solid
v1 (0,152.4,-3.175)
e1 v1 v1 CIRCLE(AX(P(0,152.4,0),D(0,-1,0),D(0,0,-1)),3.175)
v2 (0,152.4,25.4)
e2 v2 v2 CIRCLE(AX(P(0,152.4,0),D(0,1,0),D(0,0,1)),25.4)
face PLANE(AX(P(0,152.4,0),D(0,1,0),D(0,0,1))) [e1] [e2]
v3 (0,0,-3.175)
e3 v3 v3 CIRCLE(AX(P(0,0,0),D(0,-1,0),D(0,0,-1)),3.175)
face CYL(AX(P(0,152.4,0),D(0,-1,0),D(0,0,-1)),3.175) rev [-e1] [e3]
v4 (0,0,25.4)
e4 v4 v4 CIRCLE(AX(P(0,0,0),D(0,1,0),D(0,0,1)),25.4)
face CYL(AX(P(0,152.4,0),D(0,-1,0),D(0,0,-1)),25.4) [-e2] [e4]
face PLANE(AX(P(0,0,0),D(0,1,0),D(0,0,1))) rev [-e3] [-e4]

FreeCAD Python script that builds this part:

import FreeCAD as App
import Part
import Sketcher
from FreeCAD import Vector
Q = App.Units.Quantity

doc = App.newDocument("Part")
body = doc.addObject("PartDesign::Body", "Body")

sketch1 = body.newObject("Sketcher::SketchObject", "Sketch")
sketch1.AttachmentSupport = (doc.getObject("XZ_Plane"), [""])
sketch1.MapMode = "FlatFace"
sketch1.addGeometry(Part.Circle(Vector(0, 0, 0), Vector(0, 0, 1), 25), False)
sketch1.addConstraint([
    Sketcher.Constraint("Coincident", 0, 3, -1, 1),
    Sketcher.Constraint("Diameter", 0, Q("2 in")),
])
pad1 = body.newObject("PartDesign::Pad", "Pad")
pad1.Profile = sketch1
pad1.Length = Q("6 in")
pad1.Reversed = True

sketch2 = body.newObject("Sketcher::SketchObject", "Sketch001")
sketch2.AttachmentSupport = (doc.getObject("XZ_Plane"), [""])
sketch2.MapMode = "FlatFace"
sketch2.addGeometry(Part.Circle(Vector(0, 0, 0), Vector(0, 0, 1), 3.2), False)
sketch2.addConstraint([
    Sketcher.Constraint("Coincident", 0, 3, -1, 1),
    Sketcher.Constraint("Diameter", 0, Q("0.25 in")),
])
pocket1 = body.newObject("PartDesign::Pocket", "Pocket")
pocket1.Profile = sketch2
pocket1.Length = Q("6 in")

doc.recompute()
